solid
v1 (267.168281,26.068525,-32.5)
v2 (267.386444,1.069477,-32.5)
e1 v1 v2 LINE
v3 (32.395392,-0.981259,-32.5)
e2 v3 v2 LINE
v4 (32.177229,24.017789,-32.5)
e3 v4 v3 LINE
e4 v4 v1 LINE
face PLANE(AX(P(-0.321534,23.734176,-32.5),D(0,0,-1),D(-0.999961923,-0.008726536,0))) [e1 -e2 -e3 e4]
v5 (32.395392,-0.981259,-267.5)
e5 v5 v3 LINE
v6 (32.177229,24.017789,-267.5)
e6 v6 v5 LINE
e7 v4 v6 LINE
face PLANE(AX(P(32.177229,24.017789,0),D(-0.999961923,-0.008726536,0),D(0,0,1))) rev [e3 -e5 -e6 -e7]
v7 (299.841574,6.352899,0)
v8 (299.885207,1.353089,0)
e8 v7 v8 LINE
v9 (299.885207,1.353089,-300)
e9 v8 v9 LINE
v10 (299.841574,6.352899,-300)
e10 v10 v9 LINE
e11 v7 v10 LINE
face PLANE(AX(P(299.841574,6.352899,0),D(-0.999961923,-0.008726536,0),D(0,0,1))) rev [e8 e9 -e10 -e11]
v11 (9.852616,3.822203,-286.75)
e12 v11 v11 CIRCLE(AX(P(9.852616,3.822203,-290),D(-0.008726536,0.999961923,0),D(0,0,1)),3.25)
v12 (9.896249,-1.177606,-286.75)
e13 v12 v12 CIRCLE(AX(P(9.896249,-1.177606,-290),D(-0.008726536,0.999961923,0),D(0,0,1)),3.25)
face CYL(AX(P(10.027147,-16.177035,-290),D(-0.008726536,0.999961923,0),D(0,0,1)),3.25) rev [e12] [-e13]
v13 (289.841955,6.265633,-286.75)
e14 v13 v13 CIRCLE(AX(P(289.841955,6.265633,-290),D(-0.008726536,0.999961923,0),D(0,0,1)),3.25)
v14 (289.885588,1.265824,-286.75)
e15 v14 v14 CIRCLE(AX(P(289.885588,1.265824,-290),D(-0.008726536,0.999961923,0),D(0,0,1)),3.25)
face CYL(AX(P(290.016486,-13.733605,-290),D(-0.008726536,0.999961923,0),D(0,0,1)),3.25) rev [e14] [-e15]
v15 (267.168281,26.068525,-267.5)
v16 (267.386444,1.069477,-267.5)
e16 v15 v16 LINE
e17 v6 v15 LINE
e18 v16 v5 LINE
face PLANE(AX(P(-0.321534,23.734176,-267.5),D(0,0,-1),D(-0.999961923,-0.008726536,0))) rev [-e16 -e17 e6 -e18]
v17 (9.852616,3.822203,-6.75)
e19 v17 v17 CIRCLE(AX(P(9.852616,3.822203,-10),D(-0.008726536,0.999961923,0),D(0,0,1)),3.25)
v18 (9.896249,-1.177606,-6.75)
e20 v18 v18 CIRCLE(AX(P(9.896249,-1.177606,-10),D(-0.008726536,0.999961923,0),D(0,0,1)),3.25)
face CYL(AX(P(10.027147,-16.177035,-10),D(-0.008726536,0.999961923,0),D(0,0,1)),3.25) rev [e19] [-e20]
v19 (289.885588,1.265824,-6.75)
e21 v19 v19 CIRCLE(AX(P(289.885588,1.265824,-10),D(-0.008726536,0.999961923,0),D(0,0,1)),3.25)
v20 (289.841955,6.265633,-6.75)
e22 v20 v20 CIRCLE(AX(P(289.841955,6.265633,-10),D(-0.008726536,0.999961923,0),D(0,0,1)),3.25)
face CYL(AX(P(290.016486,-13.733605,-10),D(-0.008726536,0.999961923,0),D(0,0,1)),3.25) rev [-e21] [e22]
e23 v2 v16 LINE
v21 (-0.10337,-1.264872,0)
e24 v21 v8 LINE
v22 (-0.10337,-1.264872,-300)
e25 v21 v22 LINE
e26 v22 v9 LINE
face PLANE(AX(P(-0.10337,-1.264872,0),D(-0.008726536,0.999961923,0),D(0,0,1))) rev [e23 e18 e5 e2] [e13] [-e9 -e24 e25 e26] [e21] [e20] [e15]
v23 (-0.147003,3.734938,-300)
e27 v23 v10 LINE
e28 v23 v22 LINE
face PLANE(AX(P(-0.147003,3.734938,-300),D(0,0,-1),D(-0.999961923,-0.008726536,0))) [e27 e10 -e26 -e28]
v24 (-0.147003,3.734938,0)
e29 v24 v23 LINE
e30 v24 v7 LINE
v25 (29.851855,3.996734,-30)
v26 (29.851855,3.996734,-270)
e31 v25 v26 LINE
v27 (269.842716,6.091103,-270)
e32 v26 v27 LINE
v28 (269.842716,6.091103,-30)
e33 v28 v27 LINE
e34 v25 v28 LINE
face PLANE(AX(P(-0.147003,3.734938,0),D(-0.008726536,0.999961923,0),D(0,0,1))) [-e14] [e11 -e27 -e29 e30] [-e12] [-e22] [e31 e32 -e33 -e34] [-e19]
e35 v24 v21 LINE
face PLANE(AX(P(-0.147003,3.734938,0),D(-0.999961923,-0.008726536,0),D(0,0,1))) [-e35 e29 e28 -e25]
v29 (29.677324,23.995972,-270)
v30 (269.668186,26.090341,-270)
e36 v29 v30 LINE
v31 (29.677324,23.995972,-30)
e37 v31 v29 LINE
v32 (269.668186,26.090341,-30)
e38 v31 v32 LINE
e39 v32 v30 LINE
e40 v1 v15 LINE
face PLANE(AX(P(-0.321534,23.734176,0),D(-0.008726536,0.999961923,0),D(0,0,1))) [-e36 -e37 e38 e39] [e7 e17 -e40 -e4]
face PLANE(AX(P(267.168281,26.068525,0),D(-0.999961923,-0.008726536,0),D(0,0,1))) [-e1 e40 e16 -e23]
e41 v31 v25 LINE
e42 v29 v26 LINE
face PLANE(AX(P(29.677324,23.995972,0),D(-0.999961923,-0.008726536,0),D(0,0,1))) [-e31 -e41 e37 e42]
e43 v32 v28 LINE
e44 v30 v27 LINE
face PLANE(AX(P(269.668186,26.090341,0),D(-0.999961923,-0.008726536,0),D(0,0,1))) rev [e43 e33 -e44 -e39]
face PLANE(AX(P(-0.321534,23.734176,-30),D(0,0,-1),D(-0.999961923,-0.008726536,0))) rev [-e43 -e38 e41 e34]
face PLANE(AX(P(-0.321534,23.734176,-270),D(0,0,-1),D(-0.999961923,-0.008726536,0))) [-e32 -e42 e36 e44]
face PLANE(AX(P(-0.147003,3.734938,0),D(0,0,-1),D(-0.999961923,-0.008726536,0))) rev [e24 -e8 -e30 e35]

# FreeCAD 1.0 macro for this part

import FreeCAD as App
import Part
import Sketcher
from FreeCAD import Vector

doc = App.newDocument("Part")
body = doc.addObject("PartDesign::Body", "Body")

# Sketch on XZ plane
sketch1 = body.newObject("Sketcher::SketchObject", "Sketch")
sketch1.AttachmentSupport = (doc.getObject("XZ_Plane"), [""])
sketch1.MapMode = "FlatFace"
sketch1.addGeometry([
    Part.LineSegment(Vector(0, -300, 0), Vector(0, 0, 0)),
    Part.LineSegment(Vector(0, 0, 0), Vector(300, 0, 0)),
    Part.LineSegment(Vector(300, 0, 0), Vector(300, -300, 0)),
    Part.LineSegment(Vector(300, -300, 0), Vector(0, -300, 0)),
], False)
sketch1.addConstraint([
    Sketcher.Constraint("Coincident", 0, 2, 1, 1),
    Sketcher.Constraint("Coincident", 1, 2, 2, 1),
    Sketcher.Constraint("Coincident", 2, 2, 3, 1),
    Sketcher.Constraint("Coincident", 3, 2, 0, 1),
    Sketcher.Constraint("Vertical", 0),
    Sketcher.Constraint("Horizontal", 1),
    Sketcher.Constraint("Vertical", 2),
    Sketcher.Constraint("Horizontal", 3),
    Sketcher.Constraint("Coincident", 0, 2, -1, 1),
    Sketcher.Constraint("Equal", 3, 0),
    Sketcher.Constraint("DistanceX", 1, 1, 1, 2, 300.0),
])
pad1 = body.newObject("PartDesign::Pad", "Pad")
pad1.Profile = sketch1
pad1.Length = 5
pad1.Reversed = True

# Sketch on XZ plane
sketch2 = body.newObject("Sketcher::SketchObject", "Sketch001")
sketch2.AttachmentSupport = (doc.getObject("XZ_Plane"), [""])
sketch2.MapMode = "FlatFace"
sketch2.AttachmentOffset = App.Placement(Vector(0, 0, -5), App.Rotation())
sketch2.addGeometry([
    Part.LineSegment(Vector(30, -270, 0), Vector(30, -30, 0)),  # 0
    Part.LineSegment(Vector(30, -30, 0), Vector(270, -30, 0)),  # 1
    Part.LineSegment(Vector(270, -30, 0), Vector(270, -270, 0)),  # 2
    Part.LineSegment(Vector(270, -270, 0), Vector(30, -270, 0)),  # 3
    Part.LineSegment(Vector(265.25, -34.75, 0), Vector(34.75, -34.75, 0)),  # 4
    Part.LineSegment(Vector(34.75, -34.75, 0), Vector(34.75, -265.25, 0)),  # 5
    Part.LineSegment(Vector(34.75, -265.25, 0), Vector(265.25, -265.25, 0)),  # 6
    Part.LineSegment(Vector(265.25, -265.25, 0), Vector(265.25, -34.75, 0)),  # 7
], False)
sketch2.addConstraint([
    Sketcher.Constraint("Coincident", 0, 2, 1, 1),
    Sketcher.Constraint("Coincident", 1, 2, 2, 1),
    Sketcher.Constraint("Coincident", 2, 2, 3, 1),
    Sketcher.Constraint("Coincident", 3, 2, 0, 1),
    Sketcher.Constraint("Coincident", 4, 2, 5, 1),
    Sketcher.Constraint("Coincident", 5, 2, 6, 1),
    Sketcher.Constraint("Coincident", 6, 2, 7, 1),
    Sketcher.Constraint("Coincident", 7, 2, 4, 1),
    Sketcher.Constraint("Vertical", 0),
    Sketcher.Constraint("Horizontal", 1),
    Sketcher.Constraint("Vertical", 2),
    Sketcher.Constraint("Horizontal", 3),
    Sketcher.Constraint("Horizontal", 4),
    Sketcher.Constraint("Vertical", 5),
    Sketcher.Constraint("Horizontal", 6),
    Sketcher.Constraint("Vertical", 7),
    Sketcher.Constraint("Equal", 3, 0),
    Sketcher.Constraint("Equal", 6, 5),
    Sketcher.Constraint("DistanceX", 1, 1, 1, 2, 240.0),
    Sketcher.Constraint("DistanceX", 4, 2, 4, 1, 230.5),
    Sketcher.Constraint("DistanceX", -1, 1, 0, 2, 30.0),
    Sketcher.Constraint("DistanceY", 0, 2, -1, 1, 30.0),
    Sketcher.Constraint("DistanceX", -1, 1, 4, 2, 34.75),
    Sketcher.Constraint("DistanceY", 4, 2, -1, 1, 34.75),
])
pad2 = body.newObject("PartDesign::Pad", "Pad001")
pad2.Profile = sketch2
pad2.Length = 20
pad2.Reversed = True

# Sketch on XZ plane
sketch3 = body.newObject("Sketcher::SketchObject", "Sketch002")
sketch3.AttachmentSupport = (doc.getObject("XZ_Plane"), [""])
sketch3.MapMode = "FlatFace"
sketch3.AttachmentOffset = App.Placement(Vector(0, 0, -5), App.Rotation())
sketch3.addGeometry([
    Part.Circle(Vector(10, -10, 0), Vector(0, 0, 1), 3.25),
    Part.Circle(Vector(290, -10, 0), Vector(0, 0, 1), 3.25),
    Part.Circle(Vector(290, -290, 0), Vector(0, 0, 1), 3.25),
    Part.Circle(Vector(10, -290, 0), Vector(0, 0, 1), 3.25),
], False)
sketch3.addConstraint([
    Sketcher.Constraint("Equal", 0, 1),
    Sketcher.Constraint("Equal", 1, 2),
    Sketcher.Constraint("Equal", 2, 3),
    Sketcher.Constraint("Horizontal", 0, 3, 1, 3),
    Sketcher.Constraint("Horizontal", 2, 3, 3, 3),
    Sketcher.Constraint("Vertical", 1, 3, 2, 3),
    Sketcher.Constraint("Vertical", 0, 3, 3, 3),
    Sketcher.Constraint("Diameter", 0, 6.5),
    Sketcher.Constraint("DistanceX", -1, 1, 0, 3, 10.0),
    Sketcher.Constraint("DistanceY", 0, 3, -1, 1, 10.0),
    Sketcher.Constraint("DistanceX", -1, 1, 1, 3, 290.0),
    Sketcher.Constraint("DistanceY", 2, 3, -1, 1, 290.0),
])
pocket1 = body.newObject("PartDesign::Pocket", "Pocket")
pocket1.Profile = sketch3
pocket1.Length = 20
pocket1.Reversed = True

# Sketch on XZ plane
sketch4 = body.newObject("Sketcher::SketchObject", "Sketch003")
sketch4.AttachmentSupport = (doc.getObject("XZ_Plane"), [""])
sketch4.MapMode = "FlatFace"
sketch4.AttachmentOffset = App.Placement(Vector(0, 0, -25), App.Rotation())
sketch4.addGeometry([
    Part.LineSegment(Vector(30, -270, 0), Vector(30, -30, 0)),
    Part.LineSegment(Vector(30, -30, 0), Vector(270, -30, 0)),
    Part.LineSegment(Vector(270, -30, 0), Vector(270, -270, 0)),
    Part.LineSegment(Vector(270, -270, 0), Vector(30, -270, 0)),
], False)
sketch4.addConstraint([
    Sketcher.Constraint("Coincident", 0, 2, 1, 1),
    Sketcher.Constraint("Coincident", 1, 2, 2, 1),
    Sketcher.Constraint("Coincident", 2, 2, 3, 1),
    Sketcher.Constraint("Coincident", 3, 2, 0, 1),
    Sketcher.Constraint("Vertical", 0),
    Sketcher.Constraint("Horizontal", 1),
    Sketcher.Constraint("Vertical", 2),
    Sketcher.Constraint("Horizontal", 3),
    Sketcher.Constraint("Equal", 3, 0),
    Sketcher.Constraint("DistanceX", 1, 1, 1, 2, 240.0),
    Sketcher.Constraint("DistanceX", -1, 1, 0, 2, 30.0),
    Sketcher.Constraint("DistanceY", 0, 2, -1, 1, 30.0),
])
pocket2 = body.newObject("PartDesign::Pocket", "Pocket001")
pocket2.Profile = sketch4
pocket2.Length = 20
pocket2.Reversed = True

# Sketch on XZ plane
sketch5 = body.newObject("Sketcher::SketchObject", "Sketch004")
sketch5.AttachmentSupport = (doc.getObject("XZ_Plane"), [""])
sketch5.MapMode = "FlatFace"
sketch5.AttachmentOffset = App.Placement(Vector(0, 0, -5), App.Rotation())
sketch5.addGeometry([
    Part.LineSegment(Vector(30, -270, 0), Vector(30, -30, 0)),  # 0
    Part.LineSegment(Vector(30, -30, 0), Vector(270, -30, 0)),  # 1
    Part.LineSegment(Vector(270, -30, 0), Vector(270, -270, 0)),  # 2
    Part.LineSegment(Vector(270, -270, 0), Vector(30, -270, 0)),  # 3
    Part.LineSegment(Vector(267.5, -32.5, 0), Vector(32.5, -32.5, 0)),  # 4
    Part.LineSegment(Vector(32.5, -32.5, 0), Vector(32.5, -267.5, 0)),  # 5
    Part.LineSegment(Vector(32.5, -267.5, 0), Vector(267.5, -267.5, 0)),  # 6
    Part.LineSegment(Vector(267.5, -267.5, 0), Vector(267.5, -32.5, 0)),  # 7
], False)
sketch5.addConstraint([
    Sketcher.Constraint("Coincident", 0, 2, 1, 1),
    Sketcher.Constraint("Coincident", 1, 2, 2, 1),
    Sketcher.Constraint("Coincident", 2, 2, 3, 1),
    Sketcher.Constraint("Coincident", 3, 2, 0, 1),
    Sketcher.Constraint("Coincident", 4, 2, 5, 1),
    Sketcher.Constraint("Coincident", 5, 2, 6, 1),
    Sketcher.Constraint("Coincident", 6, 2, 7, 1),
    Sketcher.Constraint("Coincident", 7, 2, 4, 1),
    Sketcher.Constraint("Vertical", 0),
    Sketcher.Constraint("Horizontal", 1),
    Sketcher.Constraint("Vertical", 2),
    Sketcher.Constraint("Horizontal", 3),
    Sketcher.Constraint("Horizontal", 4),
    Sketcher.Constraint("Vertical", 5),
    Sketcher.Constraint("Horizontal", 6),
    Sketcher.Constraint("Vertical", 7),
    Sketcher.Constraint("Equal", 3, 0),
    Sketcher.Constraint("Equal", 6, 5),
    Sketcher.Constraint("DistanceX", 1, 1, 1, 2, 240.0),
    Sketcher.Constraint("DistanceX", 4, 2, 4, 1, 235.0),
    Sketcher.Constraint("DistanceX", -1, 1, 0, 2, 30.0),
    Sketcher.Constraint("DistanceY", 0, 2, -1, 1, 30.0),
    Sketcher.Constraint("DistanceX", -1, 1, 4, 2, 32.5),
    Sketcher.Constraint("DistanceY", 4, 2, -1, 1, 32.5),
])
pad3 = body.newObject("PartDesign::Pad", "Pad002")
pad3.Profile = sketch5
pad3.Length = 20
pad3.Reversed = True

# Sketch on XZ plane
sketch6 = body.newObject("Sketcher::SketchObject", "Sketch005")
sketch6.AttachmentSupport = (doc.getObject("XZ_Plane"), [""])
sketch6.MapMode = "FlatFace"
sketch6.AttachmentOffset = App.Placement(Vector(0, 0, -5), App.Rotation())
sketch6.addGeometry([
    Part.LineSegment(Vector(32.5, -267.5, 0), Vector(32.5, -32.5, 0)),
    Part.LineSegment(Vector(32.5, -32.5, 0), Vector(267.5, -32.5, 0)),
    Part.LineSegment(Vector(267.5, -32.5, 0), Vector(267.5, -267.5, 0)),
    Part.LineSegment(Vector(267.5, -267.5, 0), Vector(32.5, -267.5, 0)),
], False)
sketch6.addConstraint([
    Sketcher.Constraint("Coincident", 0, 2, 1, 1),
    Sketcher.Constraint("Coincident", 1, 2, 2, 1),
    Sketcher.Constraint("Coincident", 2, 2, 3, 1),
    Sketcher.Constraint("Coincident", 3, 2, 0, 1),
    Sketcher.Constraint("Vertical", 0),
    Sketcher.Constraint("Horizontal", 1),
    Sketcher.Constraint("Vertical", 2),
    Sketcher.Constraint("Horizontal", 3),
    Sketcher.Constraint("Equal", 3, 0),
    Sketcher.Constraint("DistanceX", 1, 1, 1, 2, 235.0),
    Sketcher.Constraint("DistanceX", -1, 1, 0, 2, 32.5),
    Sketcher.Constraint("DistanceY", 0, 2, -1, 1, 32.5),
])
pocket3 = body.newObject("PartDesign::Pocket", "Pocket002")
pocket3.Profile = sketch6
pocket3.Length = 20
pocket3.Reversed = True
body2 = doc.addObject("PartDesign::Body", "Body001")
doc.recompute()

body.Placement = App.Placement(Vector(136.191496, 162.385207, 0), App.Rotation(Vector(0, 0, -1), 89.5))
boolean = body2.newObject("PartDesign::Boolean", "Boolean")
boolean.Type = "Fuse"
boolean.addObjects([body])
body3 = doc.addObject("PartDesign::Body", "Body002")
doc.recompute()

body2.Placement = App.Placement(Vector(162.281837, -137.456367, 0), App.Rotation(Vector(0, 0, 1), 90))
boolean2 = body3.newObject("PartDesign::Boolean", "Boolean001")
boolean2.Type = "Fuse"
boolean2.addObjects([body2])

doc.recompute()
